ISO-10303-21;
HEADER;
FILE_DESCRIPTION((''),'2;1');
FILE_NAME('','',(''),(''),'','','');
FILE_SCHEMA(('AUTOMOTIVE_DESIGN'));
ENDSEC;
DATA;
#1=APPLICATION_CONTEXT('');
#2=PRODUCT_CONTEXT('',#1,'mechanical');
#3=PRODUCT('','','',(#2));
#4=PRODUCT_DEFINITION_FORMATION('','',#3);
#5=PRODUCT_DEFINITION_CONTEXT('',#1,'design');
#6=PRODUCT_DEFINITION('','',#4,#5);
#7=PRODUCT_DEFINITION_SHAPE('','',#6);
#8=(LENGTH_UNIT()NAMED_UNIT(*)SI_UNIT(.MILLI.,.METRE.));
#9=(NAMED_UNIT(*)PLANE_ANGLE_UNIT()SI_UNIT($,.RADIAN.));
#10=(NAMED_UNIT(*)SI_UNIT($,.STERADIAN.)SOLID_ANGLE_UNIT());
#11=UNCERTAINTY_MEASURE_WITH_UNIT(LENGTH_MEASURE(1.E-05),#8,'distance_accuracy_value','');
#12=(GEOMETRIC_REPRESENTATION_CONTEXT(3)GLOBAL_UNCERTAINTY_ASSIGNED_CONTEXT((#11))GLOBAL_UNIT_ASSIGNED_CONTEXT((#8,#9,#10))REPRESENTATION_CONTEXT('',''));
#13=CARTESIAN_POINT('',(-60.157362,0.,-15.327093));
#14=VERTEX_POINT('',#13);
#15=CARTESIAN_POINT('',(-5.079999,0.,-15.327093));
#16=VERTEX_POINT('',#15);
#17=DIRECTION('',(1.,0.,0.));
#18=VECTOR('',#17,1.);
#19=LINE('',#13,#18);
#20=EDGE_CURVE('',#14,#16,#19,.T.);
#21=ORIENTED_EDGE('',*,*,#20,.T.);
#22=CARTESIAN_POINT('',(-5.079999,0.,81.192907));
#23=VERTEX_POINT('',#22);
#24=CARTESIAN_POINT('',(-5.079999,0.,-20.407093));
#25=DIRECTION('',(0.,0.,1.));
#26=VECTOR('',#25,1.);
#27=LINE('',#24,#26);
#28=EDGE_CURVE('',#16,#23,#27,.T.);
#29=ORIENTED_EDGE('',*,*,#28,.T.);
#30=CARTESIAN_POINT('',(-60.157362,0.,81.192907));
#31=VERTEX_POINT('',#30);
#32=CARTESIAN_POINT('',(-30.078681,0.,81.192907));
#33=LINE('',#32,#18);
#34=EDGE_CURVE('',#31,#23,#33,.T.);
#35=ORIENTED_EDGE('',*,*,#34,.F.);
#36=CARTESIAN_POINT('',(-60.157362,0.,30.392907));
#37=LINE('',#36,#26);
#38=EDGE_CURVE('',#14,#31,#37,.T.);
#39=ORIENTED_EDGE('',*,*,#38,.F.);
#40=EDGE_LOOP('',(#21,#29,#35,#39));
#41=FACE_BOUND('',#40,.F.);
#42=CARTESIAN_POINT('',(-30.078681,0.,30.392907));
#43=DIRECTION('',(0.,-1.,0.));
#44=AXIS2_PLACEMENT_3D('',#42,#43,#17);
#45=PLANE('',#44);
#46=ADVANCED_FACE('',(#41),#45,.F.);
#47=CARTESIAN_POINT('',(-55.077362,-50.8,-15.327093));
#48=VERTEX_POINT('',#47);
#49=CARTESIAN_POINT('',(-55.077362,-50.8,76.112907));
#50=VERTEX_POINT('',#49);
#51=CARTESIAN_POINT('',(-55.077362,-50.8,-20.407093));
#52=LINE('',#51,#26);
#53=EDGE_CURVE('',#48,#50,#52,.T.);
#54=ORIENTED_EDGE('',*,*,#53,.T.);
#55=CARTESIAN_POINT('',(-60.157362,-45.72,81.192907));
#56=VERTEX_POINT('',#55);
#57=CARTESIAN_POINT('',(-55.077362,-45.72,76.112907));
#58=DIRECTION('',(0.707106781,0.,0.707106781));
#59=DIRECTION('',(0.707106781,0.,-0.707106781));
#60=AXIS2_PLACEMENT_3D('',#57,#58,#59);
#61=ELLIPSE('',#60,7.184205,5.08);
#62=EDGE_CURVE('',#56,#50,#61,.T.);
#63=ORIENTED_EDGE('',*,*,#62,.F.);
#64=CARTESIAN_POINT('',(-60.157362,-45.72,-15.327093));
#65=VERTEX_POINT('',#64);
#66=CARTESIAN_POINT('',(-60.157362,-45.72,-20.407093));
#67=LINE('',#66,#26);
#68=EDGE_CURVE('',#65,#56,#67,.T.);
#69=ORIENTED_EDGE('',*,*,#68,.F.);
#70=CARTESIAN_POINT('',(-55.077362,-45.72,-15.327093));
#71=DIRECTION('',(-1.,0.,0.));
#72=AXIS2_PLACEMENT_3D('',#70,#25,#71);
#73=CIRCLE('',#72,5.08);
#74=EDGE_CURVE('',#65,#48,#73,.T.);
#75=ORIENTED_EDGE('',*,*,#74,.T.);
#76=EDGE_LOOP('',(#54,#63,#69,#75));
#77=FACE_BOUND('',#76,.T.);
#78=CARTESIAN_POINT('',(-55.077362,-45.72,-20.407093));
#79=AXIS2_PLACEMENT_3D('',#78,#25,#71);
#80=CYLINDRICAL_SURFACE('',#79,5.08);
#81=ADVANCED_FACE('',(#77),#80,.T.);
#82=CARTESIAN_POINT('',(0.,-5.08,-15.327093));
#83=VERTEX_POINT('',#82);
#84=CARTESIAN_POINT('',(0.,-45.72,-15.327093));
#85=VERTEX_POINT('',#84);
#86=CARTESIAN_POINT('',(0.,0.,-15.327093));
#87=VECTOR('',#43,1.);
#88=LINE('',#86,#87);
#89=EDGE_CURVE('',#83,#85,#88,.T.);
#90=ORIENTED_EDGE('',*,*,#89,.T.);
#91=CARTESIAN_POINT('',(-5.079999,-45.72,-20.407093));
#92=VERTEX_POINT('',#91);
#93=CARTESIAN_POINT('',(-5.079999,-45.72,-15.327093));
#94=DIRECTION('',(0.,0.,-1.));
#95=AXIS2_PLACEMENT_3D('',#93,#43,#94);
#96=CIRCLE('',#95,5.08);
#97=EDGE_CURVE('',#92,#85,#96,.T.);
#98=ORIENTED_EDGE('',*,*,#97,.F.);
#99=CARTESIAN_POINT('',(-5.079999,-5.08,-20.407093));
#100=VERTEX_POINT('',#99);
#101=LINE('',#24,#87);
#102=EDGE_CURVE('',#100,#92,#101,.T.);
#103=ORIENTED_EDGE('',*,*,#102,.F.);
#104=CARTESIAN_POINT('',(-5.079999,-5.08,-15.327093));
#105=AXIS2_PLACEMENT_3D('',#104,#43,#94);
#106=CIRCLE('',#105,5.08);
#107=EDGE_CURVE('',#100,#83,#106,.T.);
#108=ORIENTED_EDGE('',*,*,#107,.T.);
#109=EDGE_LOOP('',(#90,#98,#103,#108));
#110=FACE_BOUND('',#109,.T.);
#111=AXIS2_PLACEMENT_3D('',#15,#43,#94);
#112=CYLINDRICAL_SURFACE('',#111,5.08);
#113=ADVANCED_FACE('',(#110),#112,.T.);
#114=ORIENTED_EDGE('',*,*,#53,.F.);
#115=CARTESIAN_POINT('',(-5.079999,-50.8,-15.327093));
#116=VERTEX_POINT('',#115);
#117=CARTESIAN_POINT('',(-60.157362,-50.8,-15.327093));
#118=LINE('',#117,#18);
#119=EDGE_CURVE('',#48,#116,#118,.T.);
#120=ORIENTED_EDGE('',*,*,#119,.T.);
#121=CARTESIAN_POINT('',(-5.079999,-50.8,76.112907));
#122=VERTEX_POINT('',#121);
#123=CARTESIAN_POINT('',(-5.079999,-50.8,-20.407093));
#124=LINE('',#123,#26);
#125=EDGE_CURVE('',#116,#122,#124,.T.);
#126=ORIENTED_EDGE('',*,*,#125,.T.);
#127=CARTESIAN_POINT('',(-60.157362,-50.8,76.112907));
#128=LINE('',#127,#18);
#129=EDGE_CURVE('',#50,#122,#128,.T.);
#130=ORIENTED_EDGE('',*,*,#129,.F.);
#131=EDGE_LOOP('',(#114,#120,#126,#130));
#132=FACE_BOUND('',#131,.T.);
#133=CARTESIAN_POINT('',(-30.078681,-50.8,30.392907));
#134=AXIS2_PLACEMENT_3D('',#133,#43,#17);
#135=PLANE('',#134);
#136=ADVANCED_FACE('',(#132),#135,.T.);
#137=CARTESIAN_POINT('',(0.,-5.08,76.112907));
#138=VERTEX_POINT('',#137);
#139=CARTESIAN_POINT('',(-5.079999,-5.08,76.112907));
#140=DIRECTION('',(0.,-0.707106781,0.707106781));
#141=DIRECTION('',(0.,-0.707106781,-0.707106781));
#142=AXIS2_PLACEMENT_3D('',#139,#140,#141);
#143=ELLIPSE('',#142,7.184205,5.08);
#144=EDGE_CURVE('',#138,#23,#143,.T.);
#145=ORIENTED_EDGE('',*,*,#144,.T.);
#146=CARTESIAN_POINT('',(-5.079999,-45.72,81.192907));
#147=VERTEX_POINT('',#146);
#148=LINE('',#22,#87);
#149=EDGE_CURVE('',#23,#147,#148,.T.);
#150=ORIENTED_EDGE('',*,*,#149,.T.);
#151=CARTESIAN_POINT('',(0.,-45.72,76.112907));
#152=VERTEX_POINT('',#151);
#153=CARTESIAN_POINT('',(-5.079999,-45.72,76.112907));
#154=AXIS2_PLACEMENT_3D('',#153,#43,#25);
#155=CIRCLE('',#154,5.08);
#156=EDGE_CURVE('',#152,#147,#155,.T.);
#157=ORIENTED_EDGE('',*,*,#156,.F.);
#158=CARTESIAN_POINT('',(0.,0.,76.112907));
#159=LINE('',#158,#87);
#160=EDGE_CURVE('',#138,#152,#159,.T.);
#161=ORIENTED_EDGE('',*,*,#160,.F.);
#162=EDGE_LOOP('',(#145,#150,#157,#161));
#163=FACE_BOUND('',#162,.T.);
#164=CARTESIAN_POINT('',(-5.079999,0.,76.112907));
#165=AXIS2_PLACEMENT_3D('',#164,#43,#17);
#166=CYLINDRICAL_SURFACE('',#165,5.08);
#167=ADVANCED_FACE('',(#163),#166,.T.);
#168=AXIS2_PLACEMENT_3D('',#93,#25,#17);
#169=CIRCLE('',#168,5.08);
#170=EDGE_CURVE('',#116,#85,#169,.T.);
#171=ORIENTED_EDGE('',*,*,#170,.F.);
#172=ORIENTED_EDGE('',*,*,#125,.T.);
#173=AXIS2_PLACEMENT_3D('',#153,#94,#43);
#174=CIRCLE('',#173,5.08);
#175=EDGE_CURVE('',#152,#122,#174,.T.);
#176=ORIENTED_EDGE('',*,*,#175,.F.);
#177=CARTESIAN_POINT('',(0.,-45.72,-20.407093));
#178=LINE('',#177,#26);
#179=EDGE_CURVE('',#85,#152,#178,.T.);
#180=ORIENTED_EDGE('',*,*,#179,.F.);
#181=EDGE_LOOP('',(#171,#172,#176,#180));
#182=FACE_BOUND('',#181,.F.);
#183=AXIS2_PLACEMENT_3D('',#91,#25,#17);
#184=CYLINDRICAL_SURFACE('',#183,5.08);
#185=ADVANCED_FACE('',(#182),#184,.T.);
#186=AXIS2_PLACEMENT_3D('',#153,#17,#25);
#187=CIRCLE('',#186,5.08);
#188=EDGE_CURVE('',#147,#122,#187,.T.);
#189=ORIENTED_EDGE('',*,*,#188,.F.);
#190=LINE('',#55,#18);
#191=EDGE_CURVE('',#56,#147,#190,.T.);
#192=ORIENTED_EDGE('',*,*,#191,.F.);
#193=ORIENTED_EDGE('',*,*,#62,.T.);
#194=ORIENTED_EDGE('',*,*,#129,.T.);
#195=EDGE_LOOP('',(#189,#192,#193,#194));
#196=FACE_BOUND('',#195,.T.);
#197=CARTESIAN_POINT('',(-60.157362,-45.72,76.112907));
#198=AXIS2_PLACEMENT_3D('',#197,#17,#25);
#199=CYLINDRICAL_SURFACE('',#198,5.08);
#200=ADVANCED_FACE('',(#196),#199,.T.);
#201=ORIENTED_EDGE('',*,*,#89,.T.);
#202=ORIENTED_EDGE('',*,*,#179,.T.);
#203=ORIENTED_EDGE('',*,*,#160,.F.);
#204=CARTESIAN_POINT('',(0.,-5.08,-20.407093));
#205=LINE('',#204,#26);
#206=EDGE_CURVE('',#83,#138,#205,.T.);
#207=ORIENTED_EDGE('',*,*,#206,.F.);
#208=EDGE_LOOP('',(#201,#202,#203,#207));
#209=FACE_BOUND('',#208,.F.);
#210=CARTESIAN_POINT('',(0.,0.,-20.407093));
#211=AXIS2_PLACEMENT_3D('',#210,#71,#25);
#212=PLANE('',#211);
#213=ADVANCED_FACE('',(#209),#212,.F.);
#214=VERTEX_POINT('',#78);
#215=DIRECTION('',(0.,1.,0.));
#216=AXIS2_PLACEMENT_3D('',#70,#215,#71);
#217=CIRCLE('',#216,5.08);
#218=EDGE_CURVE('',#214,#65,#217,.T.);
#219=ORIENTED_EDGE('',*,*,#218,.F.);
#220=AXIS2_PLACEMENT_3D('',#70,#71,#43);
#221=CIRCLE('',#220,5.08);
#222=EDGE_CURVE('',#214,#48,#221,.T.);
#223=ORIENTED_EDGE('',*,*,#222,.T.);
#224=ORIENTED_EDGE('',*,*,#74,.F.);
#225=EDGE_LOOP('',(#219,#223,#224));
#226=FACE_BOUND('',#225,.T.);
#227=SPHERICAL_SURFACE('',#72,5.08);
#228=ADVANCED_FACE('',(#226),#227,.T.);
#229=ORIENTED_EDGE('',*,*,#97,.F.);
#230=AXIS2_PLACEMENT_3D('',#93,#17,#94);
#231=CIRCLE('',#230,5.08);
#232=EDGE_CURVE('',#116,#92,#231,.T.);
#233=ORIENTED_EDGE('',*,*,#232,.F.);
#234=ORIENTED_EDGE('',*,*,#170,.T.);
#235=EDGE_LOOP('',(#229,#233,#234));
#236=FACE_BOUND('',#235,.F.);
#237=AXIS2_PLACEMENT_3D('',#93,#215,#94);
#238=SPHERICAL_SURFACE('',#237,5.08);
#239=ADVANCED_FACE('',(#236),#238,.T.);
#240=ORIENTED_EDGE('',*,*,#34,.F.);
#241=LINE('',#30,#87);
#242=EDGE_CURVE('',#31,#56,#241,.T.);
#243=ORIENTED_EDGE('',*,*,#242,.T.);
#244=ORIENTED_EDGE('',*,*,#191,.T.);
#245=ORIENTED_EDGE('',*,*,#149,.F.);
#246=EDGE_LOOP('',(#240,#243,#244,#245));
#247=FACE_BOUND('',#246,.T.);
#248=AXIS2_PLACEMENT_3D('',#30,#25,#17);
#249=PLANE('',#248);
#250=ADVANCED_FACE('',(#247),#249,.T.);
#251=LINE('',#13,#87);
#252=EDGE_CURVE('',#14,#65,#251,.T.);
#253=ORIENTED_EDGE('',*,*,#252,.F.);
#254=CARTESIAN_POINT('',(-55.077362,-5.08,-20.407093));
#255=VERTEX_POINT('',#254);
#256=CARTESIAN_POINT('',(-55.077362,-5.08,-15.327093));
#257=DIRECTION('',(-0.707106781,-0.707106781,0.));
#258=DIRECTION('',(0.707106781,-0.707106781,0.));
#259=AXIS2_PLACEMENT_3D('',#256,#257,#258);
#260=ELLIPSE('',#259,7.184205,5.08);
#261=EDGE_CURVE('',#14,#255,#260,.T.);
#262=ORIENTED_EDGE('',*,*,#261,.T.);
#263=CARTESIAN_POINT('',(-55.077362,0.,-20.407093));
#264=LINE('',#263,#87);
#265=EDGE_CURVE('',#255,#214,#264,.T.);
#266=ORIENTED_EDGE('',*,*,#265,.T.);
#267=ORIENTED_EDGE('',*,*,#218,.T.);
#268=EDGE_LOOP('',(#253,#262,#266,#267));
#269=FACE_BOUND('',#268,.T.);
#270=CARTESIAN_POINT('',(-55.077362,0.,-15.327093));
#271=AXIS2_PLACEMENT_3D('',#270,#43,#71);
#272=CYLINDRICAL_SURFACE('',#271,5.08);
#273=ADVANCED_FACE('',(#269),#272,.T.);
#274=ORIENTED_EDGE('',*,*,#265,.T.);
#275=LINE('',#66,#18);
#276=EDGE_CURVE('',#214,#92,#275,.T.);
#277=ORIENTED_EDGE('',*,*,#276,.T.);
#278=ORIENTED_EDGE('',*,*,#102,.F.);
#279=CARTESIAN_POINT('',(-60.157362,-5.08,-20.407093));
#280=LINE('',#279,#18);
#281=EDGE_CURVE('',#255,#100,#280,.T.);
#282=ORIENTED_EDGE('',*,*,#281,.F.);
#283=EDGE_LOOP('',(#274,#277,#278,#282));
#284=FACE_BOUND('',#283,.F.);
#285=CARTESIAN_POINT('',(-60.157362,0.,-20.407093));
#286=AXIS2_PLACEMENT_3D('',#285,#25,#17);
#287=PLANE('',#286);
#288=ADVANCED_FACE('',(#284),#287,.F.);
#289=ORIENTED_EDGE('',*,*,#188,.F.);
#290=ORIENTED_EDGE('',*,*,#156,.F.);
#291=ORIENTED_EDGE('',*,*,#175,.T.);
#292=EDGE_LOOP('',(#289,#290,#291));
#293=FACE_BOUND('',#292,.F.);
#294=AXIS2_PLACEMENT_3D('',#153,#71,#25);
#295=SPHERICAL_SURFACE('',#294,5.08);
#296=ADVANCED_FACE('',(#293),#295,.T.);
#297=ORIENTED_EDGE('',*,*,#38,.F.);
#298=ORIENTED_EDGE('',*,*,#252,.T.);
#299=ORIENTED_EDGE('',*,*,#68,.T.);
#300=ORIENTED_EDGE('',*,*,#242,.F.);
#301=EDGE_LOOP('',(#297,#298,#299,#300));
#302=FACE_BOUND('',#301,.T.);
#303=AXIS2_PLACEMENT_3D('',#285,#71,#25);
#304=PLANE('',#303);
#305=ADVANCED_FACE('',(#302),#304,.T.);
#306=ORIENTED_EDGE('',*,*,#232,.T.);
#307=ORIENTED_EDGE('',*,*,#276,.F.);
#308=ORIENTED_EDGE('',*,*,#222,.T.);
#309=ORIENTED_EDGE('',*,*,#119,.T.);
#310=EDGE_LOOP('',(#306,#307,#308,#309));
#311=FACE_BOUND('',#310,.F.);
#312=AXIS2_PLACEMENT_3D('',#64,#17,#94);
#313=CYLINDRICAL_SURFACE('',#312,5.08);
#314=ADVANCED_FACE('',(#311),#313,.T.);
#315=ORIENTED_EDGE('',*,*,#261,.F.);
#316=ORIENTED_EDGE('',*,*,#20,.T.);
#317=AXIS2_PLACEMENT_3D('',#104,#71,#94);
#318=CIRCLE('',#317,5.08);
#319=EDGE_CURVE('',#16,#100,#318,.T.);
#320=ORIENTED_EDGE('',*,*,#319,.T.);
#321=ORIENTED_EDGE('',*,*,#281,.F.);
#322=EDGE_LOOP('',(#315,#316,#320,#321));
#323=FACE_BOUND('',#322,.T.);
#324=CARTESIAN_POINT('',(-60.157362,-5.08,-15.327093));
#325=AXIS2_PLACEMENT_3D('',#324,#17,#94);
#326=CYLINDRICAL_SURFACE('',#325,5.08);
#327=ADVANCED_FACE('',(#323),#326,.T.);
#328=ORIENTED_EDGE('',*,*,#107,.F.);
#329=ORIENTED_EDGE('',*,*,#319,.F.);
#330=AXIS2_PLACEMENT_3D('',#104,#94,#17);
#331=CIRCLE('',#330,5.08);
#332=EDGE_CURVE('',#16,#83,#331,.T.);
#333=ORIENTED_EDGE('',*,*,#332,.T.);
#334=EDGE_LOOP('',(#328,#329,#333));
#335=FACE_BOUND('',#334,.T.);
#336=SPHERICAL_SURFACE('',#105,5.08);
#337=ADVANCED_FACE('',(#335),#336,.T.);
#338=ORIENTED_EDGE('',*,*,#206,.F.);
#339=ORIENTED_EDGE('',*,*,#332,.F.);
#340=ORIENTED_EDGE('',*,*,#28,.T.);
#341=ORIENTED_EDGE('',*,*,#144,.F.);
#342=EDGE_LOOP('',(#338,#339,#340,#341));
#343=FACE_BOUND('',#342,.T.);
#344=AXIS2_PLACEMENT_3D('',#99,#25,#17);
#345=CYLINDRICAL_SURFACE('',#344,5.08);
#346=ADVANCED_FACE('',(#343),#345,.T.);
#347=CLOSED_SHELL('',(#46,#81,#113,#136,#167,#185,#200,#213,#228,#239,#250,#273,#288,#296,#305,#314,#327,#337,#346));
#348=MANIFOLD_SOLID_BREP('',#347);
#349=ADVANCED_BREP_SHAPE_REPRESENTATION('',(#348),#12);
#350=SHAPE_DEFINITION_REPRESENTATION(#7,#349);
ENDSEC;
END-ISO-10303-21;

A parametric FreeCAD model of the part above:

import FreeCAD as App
import Part
import Sketcher
Q = App.Units.Quantity


def edges_at(feature, points):
    """Names of the edges that pass closest to the given points."""
    edges = feature.Shape.Edges
    near = lambda p: min(range(len(edges)), key=lambda i: edges[i].distToShape(Part.Vertex(*p))[0])
    return sorted({f"Edge{near(p) + 1}" for p in points})


def add_polygon(sketch, points):
    """Adds a closed chain of lines whose ends are joined by coincident constraints."""
    first, n = sketch.GeometryCount, len(points)
    for a, b in zip(points, points[1:] + points[:1]):
        sketch.addGeometry(Part.LineSegment(App.Vector(*a, 0), App.Vector(*b, 0)), False)
    for i in range(n):
        sketch.addConstraint(Sketcher.Constraint("Coincident", first + i, 2, first + (i + 1) % n, 1))

doc = App.newDocument("Part")
body = doc.addObject("PartDesign::Body", "Body")

# Sketch on XZ plane
sketch1 = body.newObject("Sketcher::SketchObject", "Sketch")
sketch1.AttachmentSupport = (doc.getObject("XZ_Plane"), [""])
sketch1.MapMode = "FlatFace"
add_polygon(sketch1, [(-60, 81), (-60, -20), (0, -20), (0, 81)])  # lines 0-3
sketch1.addConstraint(Sketcher.Constraint("Vertical", 0))
sketch1.addConstraint(Sketcher.Constraint("Horizontal", 1))
sketch1.addConstraint(Sketcher.Constraint("Vertical", 2))
sketch1.addConstraint(Sketcher.Constraint("Horizontal", 3))
sketch1.addConstraint(Sketcher.Constraint("PointOnObject", 1, 2, -2))
sketch1.addConstraint(Sketcher.Constraint("DistanceY", 0, 2, 0, 1, Q("4 in")))
sketch1.addConstraint(Sketcher.Constraint("DistanceX", 1, 1, 1, 2, Q("2.3684001 in")))
sketch1.addConstraint(Sketcher.Constraint("DistanceY", 0, 2, -1, 1, 20.407093))
pad1 = body.newObject("PartDesign::Pad", "Pad")
pad1.Profile = sketch1
pad1.Length = Q("2 in")
doc.recompute()

fillet = body.newObject("PartDesign::Fillet", "Fillet")
fillet.Base = (pad1, edges_at(pad1, [
    (-30.079, -50.8, 81.193),
    (-60.157, -50.8, 30.393),
    (-60.157, -25.4, -20.407),
    (0, -25.4, -20.407),
    (-30.079, 0, -20.407),
    (-30.079, -50.8, -20.407),
    (0, -25.4, 81.193),
    (0, 0, 30.393),
    (0, -50.8, 30.393),
]))
fillet.Radius = Q("0.2 in")

doc.recompute()
